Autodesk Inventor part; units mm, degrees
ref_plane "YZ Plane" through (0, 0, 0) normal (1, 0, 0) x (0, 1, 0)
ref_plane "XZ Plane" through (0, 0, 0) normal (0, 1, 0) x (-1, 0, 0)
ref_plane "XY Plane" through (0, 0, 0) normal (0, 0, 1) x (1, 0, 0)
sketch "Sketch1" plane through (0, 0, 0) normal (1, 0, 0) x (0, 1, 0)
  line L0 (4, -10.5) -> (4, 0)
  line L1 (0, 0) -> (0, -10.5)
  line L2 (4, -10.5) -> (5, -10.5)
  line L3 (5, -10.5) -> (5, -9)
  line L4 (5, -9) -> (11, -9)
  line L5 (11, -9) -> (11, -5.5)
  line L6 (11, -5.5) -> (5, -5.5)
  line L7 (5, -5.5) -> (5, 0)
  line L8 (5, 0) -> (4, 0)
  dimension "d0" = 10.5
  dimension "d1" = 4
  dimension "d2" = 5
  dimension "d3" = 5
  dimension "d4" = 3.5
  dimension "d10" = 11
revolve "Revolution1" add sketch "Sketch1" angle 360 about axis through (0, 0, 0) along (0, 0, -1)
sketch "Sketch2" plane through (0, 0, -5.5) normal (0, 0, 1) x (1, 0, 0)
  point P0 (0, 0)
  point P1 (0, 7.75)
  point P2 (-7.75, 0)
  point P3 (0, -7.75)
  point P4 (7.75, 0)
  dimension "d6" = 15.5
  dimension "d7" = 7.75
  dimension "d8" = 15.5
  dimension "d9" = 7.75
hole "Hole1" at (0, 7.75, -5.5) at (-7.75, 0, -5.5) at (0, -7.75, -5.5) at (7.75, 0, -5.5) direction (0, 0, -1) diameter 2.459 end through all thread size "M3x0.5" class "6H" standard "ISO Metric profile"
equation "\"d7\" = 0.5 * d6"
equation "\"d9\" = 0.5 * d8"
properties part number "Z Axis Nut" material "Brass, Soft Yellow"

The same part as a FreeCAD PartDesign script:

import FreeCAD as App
import Part
import Sketcher
from FreeCAD import Vector

doc = App.newDocument("Part")
body = doc.addObject("PartDesign::Body", "Body")

# Sketch on YZ plane
sketch1 = doc.addObject("Sketcher::SketchObject", "Sketch")
body.addObject(sketch1)
sketch1.AttachmentSupport = (doc.YZ_Plane, [""])
sketch1.MapMode = "FlatFace"
sketch1.addGeometry([
    Part.LineSegment(Vector(4, 0, 0), Vector(4, -10.5, 0)),  # 0
    Part.LineSegment(Vector(4, -10.5, 0), Vector(5, -10.5, 0)),  # 1
    Part.LineSegment(Vector(5, -10.5, 0), Vector(5, -9, 0)),  # 2
    Part.LineSegment(Vector(5, -9, 0), Vector(11, -9, 0)),  # 3
    Part.LineSegment(Vector(11, -9, 0), Vector(11, -5.5, 0)),  # 4
    Part.LineSegment(Vector(11, -5.5, 0), Vector(5, -5.5, 0)),  # 5
    Part.LineSegment(Vector(5, -5.5, 0), Vector(5, 0, 0)),  # 6
    Part.LineSegment(Vector(5, 0, 0), Vector(4, 0, 0)),  # 7
], False)
sketch1.addConstraint([
    Sketcher.Constraint("Coincident", 0, 2, 1, 1),
    Sketcher.Constraint("Coincident", 1, 2, 2, 1),
    Sketcher.Constraint("Coincident", 2, 2, 3, 1),
    Sketcher.Constraint("Coincident", 3, 2, 4, 1),
    Sketcher.Constraint("Coincident", 4, 2, 5, 1),
    Sketcher.Constraint("Coincident", 5, 2, 6, 1),
    Sketcher.Constraint("Coincident", 6, 2, 7, 1),
    Sketcher.Constraint("Coincident", 7, 2, 0, 1),
    Sketcher.Constraint("Vertical", 0),
    Sketcher.Constraint("Horizontal", 1),
    Sketcher.Constraint("Vertical", 2),
    Sketcher.Constraint("Horizontal", 3),
    Sketcher.Constraint("Vertical", 4),
    Sketcher.Constraint("Horizontal", 5),
    Sketcher.Constraint("Vertical", 6),
    Sketcher.Constraint("Horizontal", 7),
    Sketcher.Constraint("PointOnObject", 6, 2, -1),
    Sketcher.Constraint("Vertical", 2, 2, 5, 2),
    Sketcher.Constraint("DistanceY", 0, 2, 0, 1, 10.5),
    Sketcher.Constraint("DistanceY", 4, 1, 4, 2, 3.5),
    Sketcher.Constraint("DistanceX", -1, 1, 0, 2, 4.0),
    Sketcher.Constraint("DistanceX", -1, 1, 1, 2, 5.0),
    Sketcher.Constraint("DistanceX", -1, 1, 3, 2, 11.0),
    Sketcher.Constraint("DistanceY", 1, 2, 4, 2, 5.0),
])
revolution = doc.addObject("PartDesign::Revolution", "Revolution")
body.addObject(revolution)
revolution.Profile = sketch1
revolution.ReferenceAxis = (sketch1, ["V_Axis"])
revolution.Angle = 360

# Sketch on XY plane
sketch2 = doc.addObject("Sketcher::SketchObject", "Sketch001")
body.addObject(sketch2)
sketch2.AttachmentSupport = (doc.XY_Plane, [""])
sketch2.MapMode = "FlatFace"
sketch2.AttachmentOffset = App.Placement(Vector(0, 0, -5.5), App.Rotation())
sketch2.addGeometry([
    Part.Circle(Vector(0, 7.8, 0), Vector(0, 0, 1), 1.2),
    Part.Circle(Vector(-7.8, 0, 0), Vector(0, 0, 1), 1.2),
    Part.Circle(Vector(0, -7.8, 0), Vector(0, 0, 1), 1.2),
    Part.Circle(Vector(7.8, 0, 0), Vector(0, 0, 1), 1.2),
], False)
sketch2.addConstraint([
    Sketcher.Constraint("Equal", 0, 1),
    Sketcher.Constraint("Equal", 1, 2),
    Sketcher.Constraint("Equal", 2, 3),
    Sketcher.Constraint("Symmetric", 0, 3, 2, 3, -1, 1),
    Sketcher.Constraint("Symmetric", 1, 3, 3, 3, -1, 1),
    Sketcher.Constraint("PointOnObject", 0, 3, -2),
    Sketcher.Constraint("PointOnObject", 1, 3, -1),
    Sketcher.Constraint("Diameter", 0, 2.459),
    Sketcher.Constraint("DistanceY", 2, 3, 0, 3, 15.5),
    Sketcher.Constraint("DistanceX", 1, 3, 3, 3, 15.5),
])
doc.recompute()
hole = doc.addObject("PartDesign::Hole", "Hole")
body.addObject(hole)
hole.Profile = sketch2
hole.ThreadType = "None"
hole.Diameter = 2.459
hole.DepthType = "ThroughAll"

doc.recompute()
